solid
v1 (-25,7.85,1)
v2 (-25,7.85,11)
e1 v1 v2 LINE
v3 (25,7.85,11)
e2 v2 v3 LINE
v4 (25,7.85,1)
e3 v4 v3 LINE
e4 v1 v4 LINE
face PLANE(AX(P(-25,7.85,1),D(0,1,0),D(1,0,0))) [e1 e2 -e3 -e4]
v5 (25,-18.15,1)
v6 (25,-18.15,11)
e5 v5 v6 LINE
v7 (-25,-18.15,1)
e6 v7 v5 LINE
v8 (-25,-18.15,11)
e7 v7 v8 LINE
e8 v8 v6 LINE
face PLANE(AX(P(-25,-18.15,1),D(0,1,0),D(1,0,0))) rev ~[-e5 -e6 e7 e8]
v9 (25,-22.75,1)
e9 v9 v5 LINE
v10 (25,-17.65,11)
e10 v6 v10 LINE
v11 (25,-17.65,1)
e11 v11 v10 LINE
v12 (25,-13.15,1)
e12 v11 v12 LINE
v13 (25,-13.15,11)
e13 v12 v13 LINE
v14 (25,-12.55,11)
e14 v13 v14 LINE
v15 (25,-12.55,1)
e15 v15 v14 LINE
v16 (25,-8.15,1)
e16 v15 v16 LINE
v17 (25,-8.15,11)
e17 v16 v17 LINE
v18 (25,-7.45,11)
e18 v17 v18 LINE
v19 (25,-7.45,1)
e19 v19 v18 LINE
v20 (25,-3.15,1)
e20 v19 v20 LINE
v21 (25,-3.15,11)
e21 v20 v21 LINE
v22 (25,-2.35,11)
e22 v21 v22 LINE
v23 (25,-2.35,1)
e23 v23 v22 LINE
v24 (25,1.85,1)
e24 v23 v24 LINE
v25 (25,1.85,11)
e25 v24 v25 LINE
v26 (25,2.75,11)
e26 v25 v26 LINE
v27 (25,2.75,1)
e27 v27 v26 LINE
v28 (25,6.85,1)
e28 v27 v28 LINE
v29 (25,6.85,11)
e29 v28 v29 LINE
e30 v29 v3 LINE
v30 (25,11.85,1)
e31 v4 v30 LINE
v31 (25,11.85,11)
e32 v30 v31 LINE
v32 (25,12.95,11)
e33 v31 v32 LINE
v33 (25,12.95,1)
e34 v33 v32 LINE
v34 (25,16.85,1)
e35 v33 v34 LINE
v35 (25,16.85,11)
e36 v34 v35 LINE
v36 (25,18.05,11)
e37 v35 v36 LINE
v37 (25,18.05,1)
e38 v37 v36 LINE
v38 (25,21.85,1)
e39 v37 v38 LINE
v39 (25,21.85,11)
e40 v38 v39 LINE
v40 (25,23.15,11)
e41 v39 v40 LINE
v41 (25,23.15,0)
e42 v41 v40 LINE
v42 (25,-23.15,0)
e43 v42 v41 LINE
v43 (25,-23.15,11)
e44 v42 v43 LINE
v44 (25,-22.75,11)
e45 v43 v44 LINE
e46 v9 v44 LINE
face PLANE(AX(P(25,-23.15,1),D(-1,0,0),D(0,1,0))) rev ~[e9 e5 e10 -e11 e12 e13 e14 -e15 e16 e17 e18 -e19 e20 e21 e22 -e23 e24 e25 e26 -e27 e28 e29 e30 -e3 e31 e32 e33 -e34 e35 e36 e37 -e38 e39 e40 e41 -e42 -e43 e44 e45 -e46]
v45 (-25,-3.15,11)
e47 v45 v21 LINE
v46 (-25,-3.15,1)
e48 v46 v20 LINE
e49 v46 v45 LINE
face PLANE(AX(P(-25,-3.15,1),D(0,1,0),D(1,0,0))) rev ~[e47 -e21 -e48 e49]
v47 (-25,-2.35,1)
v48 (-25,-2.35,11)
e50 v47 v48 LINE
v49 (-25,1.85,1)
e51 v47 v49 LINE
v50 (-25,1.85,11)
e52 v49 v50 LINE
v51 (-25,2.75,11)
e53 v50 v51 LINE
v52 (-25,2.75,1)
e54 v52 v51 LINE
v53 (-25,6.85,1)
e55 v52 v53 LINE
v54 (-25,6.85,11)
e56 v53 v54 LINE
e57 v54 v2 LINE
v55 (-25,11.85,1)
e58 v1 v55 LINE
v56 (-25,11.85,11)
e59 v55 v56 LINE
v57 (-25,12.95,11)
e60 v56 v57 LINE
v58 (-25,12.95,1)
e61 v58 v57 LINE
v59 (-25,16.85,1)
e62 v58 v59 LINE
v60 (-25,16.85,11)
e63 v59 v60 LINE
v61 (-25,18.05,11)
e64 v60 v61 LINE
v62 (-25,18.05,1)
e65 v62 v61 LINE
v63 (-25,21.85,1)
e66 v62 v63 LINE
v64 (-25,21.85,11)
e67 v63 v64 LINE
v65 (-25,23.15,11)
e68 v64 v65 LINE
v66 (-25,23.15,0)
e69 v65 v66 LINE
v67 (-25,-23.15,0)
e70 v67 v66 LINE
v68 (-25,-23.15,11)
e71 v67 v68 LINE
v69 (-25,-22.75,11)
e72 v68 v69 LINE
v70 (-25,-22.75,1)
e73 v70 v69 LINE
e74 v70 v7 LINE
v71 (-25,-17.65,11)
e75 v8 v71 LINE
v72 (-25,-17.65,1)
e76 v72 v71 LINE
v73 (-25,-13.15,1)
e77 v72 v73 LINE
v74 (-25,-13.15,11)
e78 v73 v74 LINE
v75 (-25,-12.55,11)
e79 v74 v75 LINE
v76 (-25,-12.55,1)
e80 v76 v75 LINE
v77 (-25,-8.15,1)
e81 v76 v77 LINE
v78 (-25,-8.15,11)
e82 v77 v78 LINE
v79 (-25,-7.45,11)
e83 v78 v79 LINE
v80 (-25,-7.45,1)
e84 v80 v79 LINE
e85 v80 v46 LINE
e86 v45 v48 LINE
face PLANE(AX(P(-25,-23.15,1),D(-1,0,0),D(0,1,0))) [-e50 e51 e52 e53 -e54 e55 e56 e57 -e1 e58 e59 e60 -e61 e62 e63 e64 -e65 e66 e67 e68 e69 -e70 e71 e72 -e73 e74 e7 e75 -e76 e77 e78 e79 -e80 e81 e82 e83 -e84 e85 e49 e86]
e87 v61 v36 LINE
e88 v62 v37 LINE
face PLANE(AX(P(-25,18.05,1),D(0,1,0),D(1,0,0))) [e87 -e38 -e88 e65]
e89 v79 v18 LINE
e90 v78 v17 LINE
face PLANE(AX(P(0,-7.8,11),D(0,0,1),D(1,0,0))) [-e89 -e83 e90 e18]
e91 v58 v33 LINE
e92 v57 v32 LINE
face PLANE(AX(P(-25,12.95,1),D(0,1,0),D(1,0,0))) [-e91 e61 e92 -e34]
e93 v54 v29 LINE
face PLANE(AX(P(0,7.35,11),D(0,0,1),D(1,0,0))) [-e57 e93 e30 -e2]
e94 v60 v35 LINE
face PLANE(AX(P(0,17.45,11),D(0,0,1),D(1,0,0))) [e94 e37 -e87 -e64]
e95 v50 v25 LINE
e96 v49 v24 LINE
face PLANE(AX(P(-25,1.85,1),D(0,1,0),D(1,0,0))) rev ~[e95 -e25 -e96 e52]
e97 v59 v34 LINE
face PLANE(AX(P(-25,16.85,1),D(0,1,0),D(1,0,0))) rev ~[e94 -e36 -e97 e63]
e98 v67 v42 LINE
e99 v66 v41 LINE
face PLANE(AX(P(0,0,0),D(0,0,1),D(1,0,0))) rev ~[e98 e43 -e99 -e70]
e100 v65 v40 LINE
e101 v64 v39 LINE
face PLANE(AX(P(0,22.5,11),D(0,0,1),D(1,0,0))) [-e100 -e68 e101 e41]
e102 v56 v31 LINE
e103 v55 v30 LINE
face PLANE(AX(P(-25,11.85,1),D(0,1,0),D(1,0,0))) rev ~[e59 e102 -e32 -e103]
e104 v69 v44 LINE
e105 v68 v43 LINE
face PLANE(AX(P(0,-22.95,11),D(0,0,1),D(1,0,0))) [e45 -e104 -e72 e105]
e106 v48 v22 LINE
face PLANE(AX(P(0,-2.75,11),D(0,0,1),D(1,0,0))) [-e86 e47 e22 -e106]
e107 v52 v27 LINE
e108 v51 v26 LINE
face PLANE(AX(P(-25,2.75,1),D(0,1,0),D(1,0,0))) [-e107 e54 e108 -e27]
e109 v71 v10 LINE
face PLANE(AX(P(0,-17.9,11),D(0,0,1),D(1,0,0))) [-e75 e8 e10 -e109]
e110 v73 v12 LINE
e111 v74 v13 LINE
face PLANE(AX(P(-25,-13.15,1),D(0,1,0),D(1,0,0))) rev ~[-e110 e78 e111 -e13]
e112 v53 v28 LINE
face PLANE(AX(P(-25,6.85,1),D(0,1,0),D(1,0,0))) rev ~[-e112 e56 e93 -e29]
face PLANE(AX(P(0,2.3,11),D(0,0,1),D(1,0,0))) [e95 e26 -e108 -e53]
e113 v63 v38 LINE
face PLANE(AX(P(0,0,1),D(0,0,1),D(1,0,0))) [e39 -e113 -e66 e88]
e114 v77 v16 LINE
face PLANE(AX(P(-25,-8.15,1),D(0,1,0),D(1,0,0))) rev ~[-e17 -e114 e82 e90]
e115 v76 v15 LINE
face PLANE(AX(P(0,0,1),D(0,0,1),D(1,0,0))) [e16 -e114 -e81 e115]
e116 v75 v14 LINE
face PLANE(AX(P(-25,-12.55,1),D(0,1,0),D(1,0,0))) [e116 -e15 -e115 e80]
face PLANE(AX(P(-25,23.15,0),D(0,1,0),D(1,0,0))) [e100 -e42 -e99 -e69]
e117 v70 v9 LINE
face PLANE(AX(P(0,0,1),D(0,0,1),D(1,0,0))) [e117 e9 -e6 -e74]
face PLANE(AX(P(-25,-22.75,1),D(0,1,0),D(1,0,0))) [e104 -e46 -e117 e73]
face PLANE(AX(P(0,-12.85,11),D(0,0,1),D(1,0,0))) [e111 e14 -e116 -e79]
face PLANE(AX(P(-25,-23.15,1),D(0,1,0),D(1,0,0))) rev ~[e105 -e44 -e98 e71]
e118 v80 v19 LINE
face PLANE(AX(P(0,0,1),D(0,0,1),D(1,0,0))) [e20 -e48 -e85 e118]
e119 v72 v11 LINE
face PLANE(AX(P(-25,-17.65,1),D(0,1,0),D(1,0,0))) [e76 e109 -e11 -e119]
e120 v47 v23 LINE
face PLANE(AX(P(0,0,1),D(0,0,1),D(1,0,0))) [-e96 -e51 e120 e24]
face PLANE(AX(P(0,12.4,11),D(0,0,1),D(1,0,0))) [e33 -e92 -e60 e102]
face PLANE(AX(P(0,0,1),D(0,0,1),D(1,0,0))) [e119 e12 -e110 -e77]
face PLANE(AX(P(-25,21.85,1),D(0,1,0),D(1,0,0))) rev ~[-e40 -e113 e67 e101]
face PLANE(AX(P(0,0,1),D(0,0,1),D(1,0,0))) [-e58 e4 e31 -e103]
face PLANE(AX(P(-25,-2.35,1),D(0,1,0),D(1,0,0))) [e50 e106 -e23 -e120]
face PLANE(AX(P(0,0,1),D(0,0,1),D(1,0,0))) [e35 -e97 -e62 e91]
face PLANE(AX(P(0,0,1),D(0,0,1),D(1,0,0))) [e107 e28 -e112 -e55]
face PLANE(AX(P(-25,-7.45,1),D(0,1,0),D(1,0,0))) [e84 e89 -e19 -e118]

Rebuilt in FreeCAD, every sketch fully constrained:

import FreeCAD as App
import Part
import Sketcher
from FreeCAD import Vector
Q = App.Units.Quantity

doc = App.newDocument("Part")
body = doc.addObject("PartDesign::Body", "Body")

sketch1 = body.newObject("Sketcher::SketchObject", "Sketch")
sketch1.AttachmentSupport = (doc.getObject("XY_Plane"), [""])
sketch1.MapMode = "FlatFace"
sketch1.addGeometry([
    Part.LineSegment(Vector(-25, 23, 0), Vector(-25, -23, 0)),
    Part.LineSegment(Vector(-25, -23, 0), Vector(25, -23, 0)),
    Part.LineSegment(Vector(25, -23, 0), Vector(25, 23, 0)),
    Part.LineSegment(Vector(25, 23, 0), Vector(-25, 23, 0)),
], False)
sketch1.addConstraint([
    Sketcher.Constraint("Coincident", 0, 2, 1, 1),
    Sketcher.Constraint("Coincident", 1, 2, 2, 1),
    Sketcher.Constraint("Coincident", 2, 2, 3, 1),
    Sketcher.Constraint("Coincident", 3, 2, 0, 1),
    Sketcher.Constraint("Vertical", 0),
    Sketcher.Constraint("Horizontal", 1),
    Sketcher.Constraint("Vertical", 2),
    Sketcher.Constraint("Horizontal", 3),
    Sketcher.Constraint("Symmetric", 0, 2, 2, 2, -1, 1),
    Sketcher.Constraint("DistanceX", 1, 1, 1, 2, Q("50 mm")),
    Sketcher.Constraint("DistanceY", 0, 2, 0, 1, Q("46.3 mm")),
])
pad1 = body.newObject("PartDesign::Pad", "Pad")
pad1.Profile = sketch1
pad1.Length = 1

sketch2 = body.newObject("Sketcher::SketchObject", "Sketch001")
sketch2.AttachmentSupport = (doc.getObject("XY_Plane"), [""])
sketch2.MapMode = "FlatFace"
sketch2.AttachmentOffset = App.Placement(Vector(0, 0, 1), App.Rotation())
sketch2.addGeometry([
    Part.LineSegment(Vector(-25, -22.75, 0), Vector(-25, -23.15, 0)),
    Part.LineSegment(Vector(-25, -23.15, 0), Vector(25, -23.15, 0)),
    Part.LineSegment(Vector(25, -23.15, 0), Vector(25, -22.75, 0)),
    Part.LineSegment(Vector(25, -22.75, 0), Vector(-25, -22.75, 0)),
    Part.LineSegment(Vector(-25, -17.65, 0), Vector(-25, -18.15, 0)),
    Part.LineSegment(Vector(-25, -18.15, 0), Vector(25, -18.15, 0)),
    Part.LineSegment(Vector(25, -18.15, 0), Vector(25, -17.65, 0)),
    Part.LineSegment(Vector(25, -17.65, 0), Vector(-25, -17.65, 0)),
    Part.LineSegment(Vector(-25, -12.55, 0), Vector(-25, -13.15, 0)),
    Part.LineSegment(Vector(-25, -13.15, 0), Vector(25, -13.15, 0)),
    Part.LineSegment(Vector(25, -13.15, 0), Vector(25, -12.55, 0)),
    Part.LineSegment(Vector(25, -12.55, 0), Vector(-25, -12.55, 0)),
    Part.LineSegment(Vector(-25, -7.45, 0), Vector(-25, -8.15, 0)),
    Part.LineSegment(Vector(-25, -8.15, 0), Vector(25, -8.15, 0)),
    Part.LineSegment(Vector(25, -8.15, 0), Vector(25, -7.45, 0)),
    Part.LineSegment(Vector(25, -7.45, 0), Vector(-25, -7.45, 0)),
    Part.LineSegment(Vector(-25, -2.35, 0), Vector(-25, -3.15, 0)),
    Part.LineSegment(Vector(-25, -3.15, 0), Vector(25, -3.15, 0)),
    Part.LineSegment(Vector(25, -3.15, 0), Vector(25, -2.35, 0)),
    Part.LineSegment(Vector(25, -2.35, 0), Vector(-25, -2.35, 0)),
    Part.LineSegment(Vector(-25, 2.75, 0), Vector(-25, 1.85, 0)),
    Part.LineSegment(Vector(-25, 1.85, 0), Vector(25, 1.85, 0)),
    Part.LineSegment(Vector(25, 1.85, 0), Vector(25, 2.75, 0)),
    Part.LineSegment(Vector(25, 2.75, 0), Vector(-25, 2.75, 0)),
    Part.LineSegment(Vector(-25, 7.85, 0), Vector(-25, 6.85, 0)),
    Part.LineSegment(Vector(-25, 6.85, 0), Vector(25, 6.85, 0)),
    Part.LineSegment(Vector(25, 6.85, 0), Vector(25, 7.85, 0)),
    Part.LineSegment(Vector(25, 7.85, 0), Vector(-25, 7.85, 0)),
    Part.LineSegment(Vector(-25, 12.95, 0), Vector(-25, 11.85, 0)),
    Part.LineSegment(Vector(-25, 11.85, 0), Vector(25, 11.85, 0)),
    Part.LineSegment(Vector(25, 11.85, 0), Vector(25, 12.95, 0)),
    Part.LineSegment(Vector(25, 12.95, 0), Vector(-25, 12.95, 0)),
    Part.LineSegment(Vector(-25, 18.05, 0), Vector(-25, 16.85, 0)),
    Part.LineSegment(Vector(-25, 16.85, 0), Vector(25, 16.85, 0)),
    Part.LineSegment(Vector(25, 16.85, 0), Vector(25, 18.05, 0)),
    Part.LineSegment(Vector(25, 18.05, 0), Vector(-25, 18.05, 0)),
    Part.LineSegment(Vector(-25, 23.15, 0), Vector(-25, 21.85, 0)),
    Part.LineSegment(Vector(-25, 21.85, 0), Vector(25, 21.85, 0)),
    Part.LineSegment(Vector(25, 21.85, 0), Vector(25, 23.15, 0)),
    Part.LineSegment(Vector(25, 23.15, 0), Vector(-25, 23.15, 0)),
], False)
sketch2.addConstraint([
    Sketcher.Constraint("Coincident", 0, 2, 1, 1),
    Sketcher.Constraint("Coincident", 1, 2, 2, 1),
    Sketcher.Constraint("Coincident", 2, 2, 3, 1),
    Sketcher.Constraint("Coincident", 3, 2, 0, 1),
    Sketcher.Constraint("Coincident", 4, 2, 5, 1),
    Sketcher.Constraint("Coincident", 5, 2, 6, 1),
    Sketcher.Constraint("Coincident", 6, 2, 7, 1),
    Sketcher.Constraint("Coincident", 7, 2, 4, 1),
    Sketcher.Constraint("Coincident", 8, 2, 9, 1),
    Sketcher.Constraint("Coincident", 9, 2, 10, 1),
    Sketcher.Constraint("Coincident", 10, 2, 11, 1),
    Sketcher.Constraint("Coincident", 11, 2, 8, 1),
    Sketcher.Constraint("Coincident", 12, 2, 13, 1),
    Sketcher.Constraint("Coincident", 13, 2, 14, 1),
    Sketcher.Constraint("Coincident", 14, 2, 15, 1),
    Sketcher.Constraint("Coincident", 15, 2, 12, 1),
    Sketcher.Constraint("Coincident", 16, 2, 17, 1),
    Sketcher.Constraint("Coincident", 17, 2, 18, 1),
    Sketcher.Constraint("Coincident", 18, 2, 19, 1),
    Sketcher.Constraint("Coincident", 19, 2, 16, 1),
    Sketcher.Constraint("Coincident", 20, 2, 21, 1),
    Sketcher.Constraint("Coincident", 21, 2, 22, 1),
    Sketcher.Constraint("Coincident", 22, 2, 23, 1),
    Sketcher.Constraint("Coincident", 23, 2, 20, 1),
    Sketcher.Constraint("Coincident", 24, 2, 25, 1),
    Sketcher.Constraint("Coincident", 25, 2, 26, 1),
    Sketcher.Constraint("Coincident", 26, 2, 27, 1),
    Sketcher.Constraint("Coincident", 27, 2, 24, 1),
    Sketcher.Constraint("Coincident", 28, 2, 29, 1),
    Sketcher.Constraint("Coincident", 29, 2, 30, 1),
    Sketcher.Constraint("Coincident", 30, 2, 31, 1),
    Sketcher.Constraint("Coincident", 31, 2, 28, 1),
    Sketcher.Constraint("Coincident", 32, 2, 33, 1),
    Sketcher.Constraint("Coincident", 33, 2, 34, 1),
    Sketcher.Constraint("Coincident", 34, 2, 35, 1),
    Sketcher.Constraint("Coincident", 35, 2, 32, 1),
    Sketcher.Constraint("Coincident", 36, 2, 37, 1),
    Sketcher.Constraint("Coincident", 37, 2, 38, 1),
    Sketcher.Constraint("Coincident", 38, 2, 39, 1),
    Sketcher.Constraint("Coincident", 39, 2, 36, 1),
    Sketcher.Constraint("Vertical", 0),
    Sketcher.Constraint("Horizontal", 1),
    Sketcher.Constraint("Vertical", 2),
    Sketcher.Constraint("Horizontal", 3),
    Sketcher.Constraint("Vertical", 4),
    Sketcher.Constraint("Horizontal", 5),
    Sketcher.Constraint("Vertical", 6),
    Sketcher.Constraint("Horizontal", 7),
    Sketcher.Constraint("Vertical", 8),
    Sketcher.Constraint("Horizontal", 9),
    Sketcher.Constraint("Vertical", 10),
    Sketcher.Constraint("Horizontal", 11),
    Sketcher.Constraint("Vertical", 12),
    Sketcher.Constraint("Horizontal", 13),
    Sketcher.Constraint("Vertical", 14),
    Sketcher.Constraint("Horizontal", 15),
    Sketcher.Constraint("Vertical", 16),
    Sketcher.Constraint("Horizontal", 17),
    Sketcher.Constraint("Vertical", 18),
    Sketcher.Constraint("Horizontal", 19),
    Sketcher.Constraint("Vertical", 20),
    Sketcher.Constraint("Horizontal", 21),
    Sketcher.Constraint("Vertical", 22),
    Sketcher.Constraint("Horizontal", 23),
    Sketcher.Constraint("Vertical", 24),
    Sketcher.Constraint("Horizontal", 25),
    Sketcher.Constraint("Vertical", 26),
    Sketcher.Constraint("Horizontal", 27),
    Sketcher.Constraint("Vertical", 28),
    Sketcher.Constraint("Horizontal", 29),
    Sketcher.Constraint("Vertical", 30),
    Sketcher.Constraint("Horizontal", 31),
    Sketcher.Constraint("Vertical", 32),
    Sketcher.Constraint("Horizontal", 33),
    Sketcher.Constraint("Vertical", 34),
    Sketcher.Constraint("Horizontal", 35),
    Sketcher.Constraint("Vertical", 36),
    Sketcher.Constraint("Horizontal", 37),
    Sketcher.Constraint("Vertical", 38),
    Sketcher.Constraint("Horizontal", 39),
    Sketcher.Constraint("Symmetric", 0, 2, 38, 2, -1, 1),
    Sketcher.Constraint("Vertical", 3, 2, 4, 2),
    Sketcher.Constraint("Vertical", 2, 2, 5, 2),
    Sketcher.Constraint("Vertical", 7, 2, 8, 2),
    Sketcher.Constraint("Vertical", 6, 2, 9, 2),
    Sketcher.Constraint("Vertical", 11, 2, 12, 2),
    Sketcher.Constraint("Vertical", 10, 2, 13, 2),
    Sketcher.Constraint("Vertical", 15, 2, 16, 2),
    Sketcher.Constraint("Vertical", 14, 2, 17, 2),
    Sketcher.Constraint("Vertical", 19, 2, 20, 2),
    Sketcher.Constraint("Vertical", 18, 2, 21, 2),
    Sketcher.Constraint("Vertical", 23, 2, 24, 2),
    Sketcher.Constraint("Vertical", 22, 2, 25, 2),
    Sketcher.Constraint("Vertical", 27, 2, 28, 2),
    Sketcher.Constraint("Vertical", 26, 2, 29, 2),
    Sketcher.Constraint("Vertical", 31, 2, 32, 2),
    Sketcher.Constraint("Vertical", 30, 2, 33, 2),
    Sketcher.Constraint("Vertical", 35, 2, 36, 2),
    Sketcher.Constraint("Vertical", 34, 2, 37, 2),
    Sketcher.Constraint("DistanceX", 1, 1, 1, 2, Q("50 mm")),
    Sketcher.Constraint("DistanceY", 24, 2, 24, 1, Q("1 mm")),
    Sketcher.Constraint("DistanceY", 0, 2, 0, 1, Q("0.4 mm")),
    Sketcher.Constraint("DistanceY", 4, 2, 4, 1, Q("0.5 mm")),
    Sketcher.Constraint("DistanceY", 8, 2, 8, 1, Q("0.6 mm")),
    Sketcher.Constraint("DistanceY", 12, 2, 12, 1, Q("0.7 mm")),
    Sketcher.Constraint("DistanceY", 16, 2, 16, 1, Q("0.8 mm")),
    Sketcher.Constraint("DistanceY", 20, 2, 20, 1, Q("0.9 mm")),
    Sketcher.Constraint("DistanceY", 28, 2, 28, 1, Q("1.1 mm")),
    Sketcher.Constraint("DistanceY", 32, 2, 32, 1, Q("1.2 mm")),
    Sketcher.Constraint("DistanceY", 36, 2, 36, 1, Q("1.3 mm")),
    Sketcher.Constraint("DistanceY", 0, 2, 4, 2, Q("5 mm")),
    Sketcher.Constraint("DistanceY", 4, 2, 8, 2, Q("5 mm")),
    Sketcher.Constraint("DistanceY", 8, 2, 12, 2, Q("5 mm")),
    Sketcher.Constraint("DistanceY", 12, 2, 16, 2, Q("5 mm")),
    Sketcher.Constraint("DistanceY", 16, 2, 20, 2, Q("5 mm")),
    Sketcher.Constraint("DistanceY", 20, 2, 24, 2, Q("5 mm")),
    Sketcher.Constraint("DistanceY", 27, 2, 28, 2, Q("4 mm")),
    Sketcher.Constraint("DistanceY", 28, 2, 32, 2, Q("5 mm")),
    Sketcher.Constraint("DistanceY", 32, 2, 36, 2, Q("5 mm")),
])
pad2 = body.newObject("PartDesign::Pad", "Pad001")
pad2.Profile = sketch2
pad2.Length = 10

doc.recompute()
